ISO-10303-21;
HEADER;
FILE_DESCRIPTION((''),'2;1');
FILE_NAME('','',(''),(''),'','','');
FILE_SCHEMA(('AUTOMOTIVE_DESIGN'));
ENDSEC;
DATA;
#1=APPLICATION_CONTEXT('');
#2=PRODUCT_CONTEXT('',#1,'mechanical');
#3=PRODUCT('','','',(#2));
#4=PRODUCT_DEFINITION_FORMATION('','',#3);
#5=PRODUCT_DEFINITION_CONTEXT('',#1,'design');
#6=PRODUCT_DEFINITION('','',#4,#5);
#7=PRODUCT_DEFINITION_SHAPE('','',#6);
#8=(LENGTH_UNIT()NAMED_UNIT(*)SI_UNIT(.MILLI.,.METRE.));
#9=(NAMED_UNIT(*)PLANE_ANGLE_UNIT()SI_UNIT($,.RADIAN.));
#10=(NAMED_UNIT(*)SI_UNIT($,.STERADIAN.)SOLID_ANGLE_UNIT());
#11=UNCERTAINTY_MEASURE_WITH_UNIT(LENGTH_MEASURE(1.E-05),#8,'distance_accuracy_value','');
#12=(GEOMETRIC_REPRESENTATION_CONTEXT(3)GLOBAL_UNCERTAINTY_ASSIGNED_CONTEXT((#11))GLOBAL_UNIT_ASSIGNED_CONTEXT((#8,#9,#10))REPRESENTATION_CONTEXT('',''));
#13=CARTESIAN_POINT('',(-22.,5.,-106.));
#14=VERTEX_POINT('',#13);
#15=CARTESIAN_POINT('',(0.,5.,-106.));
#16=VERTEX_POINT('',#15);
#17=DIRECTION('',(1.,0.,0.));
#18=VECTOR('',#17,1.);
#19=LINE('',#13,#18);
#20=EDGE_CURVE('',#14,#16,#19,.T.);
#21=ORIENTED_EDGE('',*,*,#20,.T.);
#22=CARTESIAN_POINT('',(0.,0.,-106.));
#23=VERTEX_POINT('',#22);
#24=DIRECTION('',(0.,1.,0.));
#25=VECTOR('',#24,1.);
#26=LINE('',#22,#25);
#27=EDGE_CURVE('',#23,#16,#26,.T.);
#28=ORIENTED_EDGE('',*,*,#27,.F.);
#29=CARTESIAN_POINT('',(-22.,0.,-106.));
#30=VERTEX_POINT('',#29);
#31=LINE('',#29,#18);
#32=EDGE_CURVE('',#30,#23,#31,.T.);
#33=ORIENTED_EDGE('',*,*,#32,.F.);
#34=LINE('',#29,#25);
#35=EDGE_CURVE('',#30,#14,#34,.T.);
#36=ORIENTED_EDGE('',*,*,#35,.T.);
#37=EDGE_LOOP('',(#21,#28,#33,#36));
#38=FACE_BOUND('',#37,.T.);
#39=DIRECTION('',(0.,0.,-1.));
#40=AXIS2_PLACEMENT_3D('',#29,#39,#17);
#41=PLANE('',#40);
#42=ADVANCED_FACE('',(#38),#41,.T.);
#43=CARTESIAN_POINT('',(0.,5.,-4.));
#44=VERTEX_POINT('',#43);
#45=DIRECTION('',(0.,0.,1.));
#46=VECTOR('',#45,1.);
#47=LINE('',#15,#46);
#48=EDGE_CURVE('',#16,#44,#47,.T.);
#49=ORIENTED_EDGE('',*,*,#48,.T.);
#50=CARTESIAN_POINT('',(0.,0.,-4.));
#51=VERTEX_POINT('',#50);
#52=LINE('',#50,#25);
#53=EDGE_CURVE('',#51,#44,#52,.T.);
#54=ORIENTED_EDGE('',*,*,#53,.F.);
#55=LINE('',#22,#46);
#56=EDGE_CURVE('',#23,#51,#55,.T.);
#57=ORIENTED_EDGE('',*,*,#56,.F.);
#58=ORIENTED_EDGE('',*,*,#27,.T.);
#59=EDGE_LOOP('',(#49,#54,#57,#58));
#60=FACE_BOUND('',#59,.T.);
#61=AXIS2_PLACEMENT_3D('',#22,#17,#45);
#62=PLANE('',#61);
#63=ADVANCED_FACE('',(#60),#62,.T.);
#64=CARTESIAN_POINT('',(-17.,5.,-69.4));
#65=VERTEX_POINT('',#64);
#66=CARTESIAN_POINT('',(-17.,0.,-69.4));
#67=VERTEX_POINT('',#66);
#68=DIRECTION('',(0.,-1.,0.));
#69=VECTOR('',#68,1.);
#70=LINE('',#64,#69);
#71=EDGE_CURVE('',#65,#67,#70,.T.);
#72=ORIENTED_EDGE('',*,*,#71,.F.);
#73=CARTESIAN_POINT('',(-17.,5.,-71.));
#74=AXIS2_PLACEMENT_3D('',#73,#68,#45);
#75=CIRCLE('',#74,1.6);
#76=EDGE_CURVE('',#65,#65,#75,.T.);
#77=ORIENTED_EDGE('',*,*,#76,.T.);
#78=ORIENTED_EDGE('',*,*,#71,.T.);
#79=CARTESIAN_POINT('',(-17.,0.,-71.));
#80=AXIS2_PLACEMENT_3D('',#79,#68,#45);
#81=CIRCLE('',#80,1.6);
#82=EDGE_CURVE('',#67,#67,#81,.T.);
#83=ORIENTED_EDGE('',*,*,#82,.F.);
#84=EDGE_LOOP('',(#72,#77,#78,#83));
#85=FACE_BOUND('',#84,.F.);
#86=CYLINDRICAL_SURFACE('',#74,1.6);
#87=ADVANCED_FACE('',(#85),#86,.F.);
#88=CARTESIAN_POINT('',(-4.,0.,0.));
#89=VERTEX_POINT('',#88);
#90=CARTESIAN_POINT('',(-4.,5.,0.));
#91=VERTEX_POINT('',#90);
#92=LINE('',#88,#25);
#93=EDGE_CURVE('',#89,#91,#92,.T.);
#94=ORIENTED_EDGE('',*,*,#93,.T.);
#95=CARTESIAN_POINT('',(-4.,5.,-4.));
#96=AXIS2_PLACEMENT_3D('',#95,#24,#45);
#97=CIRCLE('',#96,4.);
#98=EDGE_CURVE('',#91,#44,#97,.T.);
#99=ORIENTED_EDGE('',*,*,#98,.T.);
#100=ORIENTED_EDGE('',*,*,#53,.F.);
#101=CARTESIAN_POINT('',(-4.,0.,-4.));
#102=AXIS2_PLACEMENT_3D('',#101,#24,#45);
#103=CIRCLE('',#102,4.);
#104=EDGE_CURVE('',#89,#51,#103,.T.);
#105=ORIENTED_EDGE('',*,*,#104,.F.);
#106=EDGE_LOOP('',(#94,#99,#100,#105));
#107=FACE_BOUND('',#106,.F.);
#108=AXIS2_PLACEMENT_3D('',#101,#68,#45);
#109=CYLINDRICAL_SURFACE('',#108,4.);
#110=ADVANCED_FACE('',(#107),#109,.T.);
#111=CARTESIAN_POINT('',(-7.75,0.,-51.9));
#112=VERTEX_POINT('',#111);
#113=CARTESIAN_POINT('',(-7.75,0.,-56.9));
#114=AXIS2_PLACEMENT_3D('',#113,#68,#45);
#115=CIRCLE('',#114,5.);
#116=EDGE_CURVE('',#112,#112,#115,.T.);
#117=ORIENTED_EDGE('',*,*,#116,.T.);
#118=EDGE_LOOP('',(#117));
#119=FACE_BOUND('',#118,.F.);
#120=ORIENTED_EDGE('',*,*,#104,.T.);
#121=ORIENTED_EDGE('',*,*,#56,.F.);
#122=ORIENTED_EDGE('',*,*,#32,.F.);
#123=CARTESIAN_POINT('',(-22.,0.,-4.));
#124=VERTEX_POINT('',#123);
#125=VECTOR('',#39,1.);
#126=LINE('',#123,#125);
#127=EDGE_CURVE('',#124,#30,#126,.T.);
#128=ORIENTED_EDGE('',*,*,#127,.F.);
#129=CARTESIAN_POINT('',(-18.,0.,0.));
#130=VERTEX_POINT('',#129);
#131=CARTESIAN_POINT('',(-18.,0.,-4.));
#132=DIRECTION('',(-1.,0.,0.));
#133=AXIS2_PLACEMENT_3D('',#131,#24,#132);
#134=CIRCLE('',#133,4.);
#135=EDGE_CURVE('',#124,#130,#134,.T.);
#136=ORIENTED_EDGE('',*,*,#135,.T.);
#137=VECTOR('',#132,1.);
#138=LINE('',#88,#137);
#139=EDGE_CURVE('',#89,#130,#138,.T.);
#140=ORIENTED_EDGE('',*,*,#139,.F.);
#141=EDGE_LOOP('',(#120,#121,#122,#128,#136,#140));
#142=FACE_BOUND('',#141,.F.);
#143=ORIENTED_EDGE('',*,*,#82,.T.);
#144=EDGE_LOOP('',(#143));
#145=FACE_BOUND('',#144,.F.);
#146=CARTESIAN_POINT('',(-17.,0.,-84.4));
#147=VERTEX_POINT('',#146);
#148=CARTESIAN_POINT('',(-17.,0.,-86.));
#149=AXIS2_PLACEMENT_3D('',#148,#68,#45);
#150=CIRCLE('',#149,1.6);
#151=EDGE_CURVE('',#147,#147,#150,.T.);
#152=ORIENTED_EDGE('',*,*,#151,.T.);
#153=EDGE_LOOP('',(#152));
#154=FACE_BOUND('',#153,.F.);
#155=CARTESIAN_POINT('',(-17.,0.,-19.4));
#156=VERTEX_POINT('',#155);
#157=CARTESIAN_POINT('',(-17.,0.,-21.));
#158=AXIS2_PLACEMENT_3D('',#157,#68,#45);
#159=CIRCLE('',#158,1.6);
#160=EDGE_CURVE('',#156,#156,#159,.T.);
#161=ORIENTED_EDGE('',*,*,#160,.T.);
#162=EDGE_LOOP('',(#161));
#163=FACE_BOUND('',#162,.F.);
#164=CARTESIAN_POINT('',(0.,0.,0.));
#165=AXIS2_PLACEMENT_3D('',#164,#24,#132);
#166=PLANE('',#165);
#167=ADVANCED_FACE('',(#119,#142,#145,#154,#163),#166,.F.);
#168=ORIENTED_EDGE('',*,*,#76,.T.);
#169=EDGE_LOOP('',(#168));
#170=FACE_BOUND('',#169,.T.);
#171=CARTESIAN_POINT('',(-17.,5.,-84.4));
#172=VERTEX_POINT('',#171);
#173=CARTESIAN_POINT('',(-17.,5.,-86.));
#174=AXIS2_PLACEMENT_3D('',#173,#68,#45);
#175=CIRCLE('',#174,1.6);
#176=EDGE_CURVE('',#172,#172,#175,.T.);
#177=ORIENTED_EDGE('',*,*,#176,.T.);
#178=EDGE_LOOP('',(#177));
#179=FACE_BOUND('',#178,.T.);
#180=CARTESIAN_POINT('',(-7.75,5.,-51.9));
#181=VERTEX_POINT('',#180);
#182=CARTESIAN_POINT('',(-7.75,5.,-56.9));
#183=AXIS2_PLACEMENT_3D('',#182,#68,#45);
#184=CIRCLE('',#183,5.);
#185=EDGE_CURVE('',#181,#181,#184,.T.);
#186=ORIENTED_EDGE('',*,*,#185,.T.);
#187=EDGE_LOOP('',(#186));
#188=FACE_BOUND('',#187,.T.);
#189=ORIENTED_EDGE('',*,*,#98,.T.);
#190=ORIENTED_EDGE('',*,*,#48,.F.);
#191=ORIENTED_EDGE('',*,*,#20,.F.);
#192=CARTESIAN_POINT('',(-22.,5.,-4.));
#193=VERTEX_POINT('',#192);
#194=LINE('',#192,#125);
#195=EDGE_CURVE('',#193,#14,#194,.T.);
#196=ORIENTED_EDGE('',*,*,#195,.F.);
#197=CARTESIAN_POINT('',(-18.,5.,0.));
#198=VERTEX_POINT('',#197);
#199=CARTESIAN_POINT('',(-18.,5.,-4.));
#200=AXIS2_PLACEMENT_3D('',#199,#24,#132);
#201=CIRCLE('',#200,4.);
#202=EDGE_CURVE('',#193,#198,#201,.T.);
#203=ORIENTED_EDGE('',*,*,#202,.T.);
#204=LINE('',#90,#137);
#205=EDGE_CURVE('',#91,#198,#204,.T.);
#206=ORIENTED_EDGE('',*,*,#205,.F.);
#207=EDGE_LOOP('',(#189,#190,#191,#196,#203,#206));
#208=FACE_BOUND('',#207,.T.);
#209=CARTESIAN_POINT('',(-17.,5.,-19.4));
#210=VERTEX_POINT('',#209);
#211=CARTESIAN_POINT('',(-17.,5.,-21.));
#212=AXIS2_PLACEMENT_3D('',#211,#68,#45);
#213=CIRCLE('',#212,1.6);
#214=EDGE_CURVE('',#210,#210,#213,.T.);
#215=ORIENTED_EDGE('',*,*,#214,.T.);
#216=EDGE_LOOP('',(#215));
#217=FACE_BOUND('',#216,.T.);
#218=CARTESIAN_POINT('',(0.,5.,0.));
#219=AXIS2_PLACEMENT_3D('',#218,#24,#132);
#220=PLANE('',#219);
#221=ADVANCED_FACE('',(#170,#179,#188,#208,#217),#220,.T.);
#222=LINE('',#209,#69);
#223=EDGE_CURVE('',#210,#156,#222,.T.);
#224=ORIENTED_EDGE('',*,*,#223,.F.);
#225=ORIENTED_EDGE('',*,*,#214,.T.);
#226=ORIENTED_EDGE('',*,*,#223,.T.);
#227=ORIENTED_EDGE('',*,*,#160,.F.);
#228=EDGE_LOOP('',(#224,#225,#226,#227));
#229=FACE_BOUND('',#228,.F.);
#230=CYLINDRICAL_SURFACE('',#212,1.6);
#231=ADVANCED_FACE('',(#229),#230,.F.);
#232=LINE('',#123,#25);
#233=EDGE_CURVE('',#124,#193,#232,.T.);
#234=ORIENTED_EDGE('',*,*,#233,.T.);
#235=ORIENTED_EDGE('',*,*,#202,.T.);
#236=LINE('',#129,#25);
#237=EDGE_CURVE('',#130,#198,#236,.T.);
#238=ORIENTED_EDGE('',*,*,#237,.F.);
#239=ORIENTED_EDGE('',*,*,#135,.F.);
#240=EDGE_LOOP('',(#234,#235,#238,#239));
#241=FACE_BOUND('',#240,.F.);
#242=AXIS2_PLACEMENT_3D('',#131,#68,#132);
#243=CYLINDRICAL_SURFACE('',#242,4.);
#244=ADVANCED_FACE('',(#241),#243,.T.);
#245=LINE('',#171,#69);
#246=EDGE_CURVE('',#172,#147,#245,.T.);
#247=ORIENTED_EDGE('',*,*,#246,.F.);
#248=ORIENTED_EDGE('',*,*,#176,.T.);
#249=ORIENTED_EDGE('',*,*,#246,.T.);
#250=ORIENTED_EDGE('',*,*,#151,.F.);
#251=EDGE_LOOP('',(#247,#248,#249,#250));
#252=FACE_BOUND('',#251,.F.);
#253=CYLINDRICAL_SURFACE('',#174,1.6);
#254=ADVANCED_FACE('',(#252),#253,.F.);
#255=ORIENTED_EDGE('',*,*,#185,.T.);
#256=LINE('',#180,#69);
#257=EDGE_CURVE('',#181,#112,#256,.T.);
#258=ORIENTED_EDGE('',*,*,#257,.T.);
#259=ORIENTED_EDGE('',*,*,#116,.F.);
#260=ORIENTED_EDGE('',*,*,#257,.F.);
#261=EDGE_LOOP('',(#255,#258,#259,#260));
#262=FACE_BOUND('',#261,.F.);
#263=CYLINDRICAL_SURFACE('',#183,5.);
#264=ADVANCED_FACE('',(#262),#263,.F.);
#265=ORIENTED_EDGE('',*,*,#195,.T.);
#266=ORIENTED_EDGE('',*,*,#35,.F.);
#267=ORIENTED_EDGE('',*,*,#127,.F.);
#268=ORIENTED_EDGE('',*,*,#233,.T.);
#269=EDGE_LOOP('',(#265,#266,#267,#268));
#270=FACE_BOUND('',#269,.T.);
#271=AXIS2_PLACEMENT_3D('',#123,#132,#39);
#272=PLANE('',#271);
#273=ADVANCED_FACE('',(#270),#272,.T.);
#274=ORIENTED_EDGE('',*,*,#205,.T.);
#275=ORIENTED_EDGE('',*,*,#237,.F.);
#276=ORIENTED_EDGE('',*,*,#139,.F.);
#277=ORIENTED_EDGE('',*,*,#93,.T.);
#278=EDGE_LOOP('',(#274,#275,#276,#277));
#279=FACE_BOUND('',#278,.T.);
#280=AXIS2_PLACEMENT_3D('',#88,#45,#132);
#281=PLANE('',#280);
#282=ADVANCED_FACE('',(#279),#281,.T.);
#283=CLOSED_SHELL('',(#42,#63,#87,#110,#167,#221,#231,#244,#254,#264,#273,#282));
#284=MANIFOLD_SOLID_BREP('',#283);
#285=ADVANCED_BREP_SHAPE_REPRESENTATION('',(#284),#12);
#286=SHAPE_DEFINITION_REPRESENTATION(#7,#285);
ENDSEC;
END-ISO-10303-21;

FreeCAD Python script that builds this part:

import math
import FreeCAD as App
import Part
import Sketcher

V = App.Vector
Q = App.Units.Quantity

doc = App.newDocument("Part")
body = doc.addObject("PartDesign::Body", "Body")

sketch1 = doc.addObject("Sketcher::SketchObject", "Sketch")
body.addObject(sketch1)
sketch1.AttachmentSupport = (doc.XZ_Plane, [""])
sketch1.MapMode = "FlatFace"
sketch1.addGeometry(Part.LineSegment(V(-18, 0, 0), V(-4, 0, 0)), False)
sketch1.addGeometry(Part.ArcOfCircle(Part.Circle(V(-4, -4, 0), V(0, 0, 1), 4), math.radians(0), math.radians(90)), False)
sketch1.addGeometry(Part.LineSegment(V(0, -4, 0), V(0, -106, 0)), False)
sketch1.addGeometry(Part.LineSegment(V(0, -106, 0), V(-22, -106, 0)), False)
sketch1.addGeometry(Part.LineSegment(V(-22, -106, 0), V(-22, -4, 0)), False)
sketch1.addGeometry(Part.ArcOfCircle(Part.Circle(V(-18, -4, 0), V(0, 0, 1), 4), math.radians(90), math.radians(180)), False)
sketch1.addConstraint(Sketcher.Constraint("Tangent", 0, 2, 1, 2))
sketch1.addConstraint(Sketcher.Constraint("Tangent", 1, 1, 2, 1))
sketch1.addConstraint(Sketcher.Constraint("Coincident", 2, 2, 3, 1))
sketch1.addConstraint(Sketcher.Constraint("Coincident", 3, 2, 4, 1))
sketch1.addConstraint(Sketcher.Constraint("Tangent", 4, 2, 5, 2))
sketch1.addConstraint(Sketcher.Constraint("Tangent", 5, 1, 0, 1))
sketch1.addConstraint(Sketcher.Constraint("Horizontal", 0))
sketch1.addConstraint(Sketcher.Constraint("Vertical", 2))
sketch1.addConstraint(Sketcher.Constraint("Horizontal", 3))
sketch1.addConstraint(Sketcher.Constraint("Vertical", 4))
sketch1.addConstraint(Sketcher.Constraint("Equal", 1, 5))
sketch1.addConstraint(Sketcher.Constraint("PointOnObject", 0, 2, -1))
sketch1.addConstraint(Sketcher.Constraint("PointOnObject", 1, 1, -2))
sketch1.addConstraint(Sketcher.Constraint("Radius", 1, Q("4 mm")))
sketch1.addConstraint(Sketcher.Constraint("DistanceX", 3, 2, 3, 1, Q("22 mm")))
sketch1.addConstraint(Sketcher.Constraint("DistanceY", 2, 2, -1, 1, Q("106 mm")))
pad1 = doc.addObject("PartDesign::Pad", "Pad")
body.addObject(pad1)
pad1.Profile = sketch1
pad1.Length = 5
pad1.Reversed = True

sketch2 = doc.addObject("Sketcher::SketchObject", "Sketch001")
body.addObject(sketch2)
sketch2.AttachmentSupport = (doc.XZ_Plane, [""])
sketch2.MapMode = "FlatFace"
sketch2.AttachmentOffset = App.Placement(V(0, 0, -5), App.Rotation())
sketch2.addGeometry(Part.Circle(V(-7.75, -56.9, 0), V(0, 0, 1), 5), False)
sketch2.addConstraint(Sketcher.Constraint("Diameter", 0, Q("10 mm")))
sketch2.addConstraint(Sketcher.Constraint("DistanceY", 0, 3, -1, 1, Q("56.9 mm")))
sketch2.addConstraint(Sketcher.Constraint("DistanceX", 0, 3, -1, 1, Q("7.75 mm")))
doc.recompute()
hole = doc.addObject("PartDesign::Hole", "Hole")
body.addObject(hole)
hole.Profile = sketch2
hole.ThreadType = "None"
hole.Diameter = 10
hole.DepthType = "ThroughAll"
hole.Reversed = True

sketch3 = doc.addObject("Sketcher::SketchObject", "Sketch002")
body.addObject(sketch3)
sketch3.AttachmentSupport = (doc.XZ_Plane, [""])
sketch3.MapMode = "FlatFace"
sketch3.AttachmentOffset = App.Placement(V(0, 0, -5), App.Rotation())
sketch3.addGeometry(Part.Circle(V(-17, -86, 0), V(0, 0, 1), 1.6), False)
sketch3.addGeometry(Part.Circle(V(-17, -21, 0), V(0, 0, 1), 1.6), False)
sketch3.addGeometry(Part.Circle(V(-17, -71, 0), V(0, 0, 1), 1.6), False)
sketch3.addConstraint(Sketcher.Constraint("Equal", 0, 1))
sketch3.addConstraint(Sketcher.Constraint("Equal", 1, 2))
sketch3.addConstraint(Sketcher.Constraint("Vertical", 0, 3, 1, 3))
sketch3.addConstraint(Sketcher.Constraint("Vertical", 1, 3, 2, 3))
sketch3.addConstraint(Sketcher.Constraint("Diameter", 0, Q("3.2 mm")))
sketch3.addConstraint(Sketcher.Constraint("DistanceX", 0, 3, -1, 1, Q("17 mm")))
sketch3.addConstraint(Sketcher.Constraint("DistanceY", 0, 3, -1, 1, Q("86 mm")))
sketch3.addConstraint(Sketcher.Constraint("DistanceY", 1, 3, -1, 1, Q("21 mm")))
sketch3.addConstraint(Sketcher.Constraint("DistanceY", 2, 3, -1, 1, Q("71 mm")))
doc.recompute()
hole2 = doc.addObject("PartDesign::Hole", "Hole001")
body.addObject(hole2)
hole2.Profile = sketch3
hole2.ThreadType = "None"
hole2.Diameter = 3.2
hole2.DepthType = "ThroughAll"
hole2.Reversed = True

doc.recompute()
